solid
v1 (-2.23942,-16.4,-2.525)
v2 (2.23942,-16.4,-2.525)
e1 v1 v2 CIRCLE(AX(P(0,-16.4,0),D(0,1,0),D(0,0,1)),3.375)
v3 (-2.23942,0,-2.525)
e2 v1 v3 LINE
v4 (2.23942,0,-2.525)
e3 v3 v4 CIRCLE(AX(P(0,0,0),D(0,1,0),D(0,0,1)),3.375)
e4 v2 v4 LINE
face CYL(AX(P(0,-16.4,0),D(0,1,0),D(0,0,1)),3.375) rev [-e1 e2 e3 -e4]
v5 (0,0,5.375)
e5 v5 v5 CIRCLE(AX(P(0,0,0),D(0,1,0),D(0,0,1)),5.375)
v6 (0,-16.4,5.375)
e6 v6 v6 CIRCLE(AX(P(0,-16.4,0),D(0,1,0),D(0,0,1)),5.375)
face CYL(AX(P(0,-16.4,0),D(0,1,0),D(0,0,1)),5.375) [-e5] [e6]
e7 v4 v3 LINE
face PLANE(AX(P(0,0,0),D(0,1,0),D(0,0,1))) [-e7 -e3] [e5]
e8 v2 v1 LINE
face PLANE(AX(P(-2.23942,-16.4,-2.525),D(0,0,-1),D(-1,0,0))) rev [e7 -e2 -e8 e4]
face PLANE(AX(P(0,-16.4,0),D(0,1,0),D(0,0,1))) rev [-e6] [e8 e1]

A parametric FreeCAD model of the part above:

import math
import FreeCAD as App
import Part
import Sketcher
from FreeCAD import Vector

doc = App.newDocument("Part")
body = doc.addObject("PartDesign::Body", "Body")

# Sketch on XZ plane
sketch1 = body.newObject("Sketcher::SketchObject", "Sketch")
sketch1.AttachmentSupport = (doc.getObject("XZ_Plane"), [""])
sketch1.MapMode = "FlatFace"
sketch1.addGeometry(Part.Circle(Vector(0, 0, 0), Vector(0, 0, 1), 5), False)
sketch1.addConstraint([
    Sketcher.Constraint("Coincident", 0, 3, -1, 1),
    Sketcher.Constraint("Diameter", 0, 10.75),
])
pad1 = body.newObject("PartDesign::Pad", "Pad")
pad1.Profile = sketch1
pad1.Length = 16.4

# Sketch on XZ plane
sketch2 = body.newObject("Sketcher::SketchObject", "Sketch001")
sketch2.AttachmentSupport = (doc.getObject("XZ_Plane"), [""])
sketch2.MapMode = "FlatFace"
sketch2.addGeometry([
    Part.LineSegment(Vector(2.2, -2.5, 0), Vector(-2.2, -2.5, 0)),
    Part.ArcOfCircle(Part.Circle(Vector(0, 0, 0), Vector(0, 0, 1), 3.4), math.radians(-48), math.radians(228)),
], False)
sketch2.addConstraint([
    Sketcher.Constraint("Coincident", 0, 1, 1, 1),
    Sketcher.Constraint("Coincident", 1, 2, 0, 2),
    Sketcher.Constraint("Horizontal", 0),
    Sketcher.Constraint("Coincident", 1, 3, -1, 1),
    Sketcher.Constraint("Radius", 1, 3.375),
    Sketcher.Constraint("DistanceY", 0, 1, -1, 1, 2.525),
])
pocket1 = body.newObject("PartDesign::Pocket", "Pocket")
pocket1.Profile = sketch2
pocket1.Type = "ThroughAll"
pocket1.Reversed = True

doc.recompute()
